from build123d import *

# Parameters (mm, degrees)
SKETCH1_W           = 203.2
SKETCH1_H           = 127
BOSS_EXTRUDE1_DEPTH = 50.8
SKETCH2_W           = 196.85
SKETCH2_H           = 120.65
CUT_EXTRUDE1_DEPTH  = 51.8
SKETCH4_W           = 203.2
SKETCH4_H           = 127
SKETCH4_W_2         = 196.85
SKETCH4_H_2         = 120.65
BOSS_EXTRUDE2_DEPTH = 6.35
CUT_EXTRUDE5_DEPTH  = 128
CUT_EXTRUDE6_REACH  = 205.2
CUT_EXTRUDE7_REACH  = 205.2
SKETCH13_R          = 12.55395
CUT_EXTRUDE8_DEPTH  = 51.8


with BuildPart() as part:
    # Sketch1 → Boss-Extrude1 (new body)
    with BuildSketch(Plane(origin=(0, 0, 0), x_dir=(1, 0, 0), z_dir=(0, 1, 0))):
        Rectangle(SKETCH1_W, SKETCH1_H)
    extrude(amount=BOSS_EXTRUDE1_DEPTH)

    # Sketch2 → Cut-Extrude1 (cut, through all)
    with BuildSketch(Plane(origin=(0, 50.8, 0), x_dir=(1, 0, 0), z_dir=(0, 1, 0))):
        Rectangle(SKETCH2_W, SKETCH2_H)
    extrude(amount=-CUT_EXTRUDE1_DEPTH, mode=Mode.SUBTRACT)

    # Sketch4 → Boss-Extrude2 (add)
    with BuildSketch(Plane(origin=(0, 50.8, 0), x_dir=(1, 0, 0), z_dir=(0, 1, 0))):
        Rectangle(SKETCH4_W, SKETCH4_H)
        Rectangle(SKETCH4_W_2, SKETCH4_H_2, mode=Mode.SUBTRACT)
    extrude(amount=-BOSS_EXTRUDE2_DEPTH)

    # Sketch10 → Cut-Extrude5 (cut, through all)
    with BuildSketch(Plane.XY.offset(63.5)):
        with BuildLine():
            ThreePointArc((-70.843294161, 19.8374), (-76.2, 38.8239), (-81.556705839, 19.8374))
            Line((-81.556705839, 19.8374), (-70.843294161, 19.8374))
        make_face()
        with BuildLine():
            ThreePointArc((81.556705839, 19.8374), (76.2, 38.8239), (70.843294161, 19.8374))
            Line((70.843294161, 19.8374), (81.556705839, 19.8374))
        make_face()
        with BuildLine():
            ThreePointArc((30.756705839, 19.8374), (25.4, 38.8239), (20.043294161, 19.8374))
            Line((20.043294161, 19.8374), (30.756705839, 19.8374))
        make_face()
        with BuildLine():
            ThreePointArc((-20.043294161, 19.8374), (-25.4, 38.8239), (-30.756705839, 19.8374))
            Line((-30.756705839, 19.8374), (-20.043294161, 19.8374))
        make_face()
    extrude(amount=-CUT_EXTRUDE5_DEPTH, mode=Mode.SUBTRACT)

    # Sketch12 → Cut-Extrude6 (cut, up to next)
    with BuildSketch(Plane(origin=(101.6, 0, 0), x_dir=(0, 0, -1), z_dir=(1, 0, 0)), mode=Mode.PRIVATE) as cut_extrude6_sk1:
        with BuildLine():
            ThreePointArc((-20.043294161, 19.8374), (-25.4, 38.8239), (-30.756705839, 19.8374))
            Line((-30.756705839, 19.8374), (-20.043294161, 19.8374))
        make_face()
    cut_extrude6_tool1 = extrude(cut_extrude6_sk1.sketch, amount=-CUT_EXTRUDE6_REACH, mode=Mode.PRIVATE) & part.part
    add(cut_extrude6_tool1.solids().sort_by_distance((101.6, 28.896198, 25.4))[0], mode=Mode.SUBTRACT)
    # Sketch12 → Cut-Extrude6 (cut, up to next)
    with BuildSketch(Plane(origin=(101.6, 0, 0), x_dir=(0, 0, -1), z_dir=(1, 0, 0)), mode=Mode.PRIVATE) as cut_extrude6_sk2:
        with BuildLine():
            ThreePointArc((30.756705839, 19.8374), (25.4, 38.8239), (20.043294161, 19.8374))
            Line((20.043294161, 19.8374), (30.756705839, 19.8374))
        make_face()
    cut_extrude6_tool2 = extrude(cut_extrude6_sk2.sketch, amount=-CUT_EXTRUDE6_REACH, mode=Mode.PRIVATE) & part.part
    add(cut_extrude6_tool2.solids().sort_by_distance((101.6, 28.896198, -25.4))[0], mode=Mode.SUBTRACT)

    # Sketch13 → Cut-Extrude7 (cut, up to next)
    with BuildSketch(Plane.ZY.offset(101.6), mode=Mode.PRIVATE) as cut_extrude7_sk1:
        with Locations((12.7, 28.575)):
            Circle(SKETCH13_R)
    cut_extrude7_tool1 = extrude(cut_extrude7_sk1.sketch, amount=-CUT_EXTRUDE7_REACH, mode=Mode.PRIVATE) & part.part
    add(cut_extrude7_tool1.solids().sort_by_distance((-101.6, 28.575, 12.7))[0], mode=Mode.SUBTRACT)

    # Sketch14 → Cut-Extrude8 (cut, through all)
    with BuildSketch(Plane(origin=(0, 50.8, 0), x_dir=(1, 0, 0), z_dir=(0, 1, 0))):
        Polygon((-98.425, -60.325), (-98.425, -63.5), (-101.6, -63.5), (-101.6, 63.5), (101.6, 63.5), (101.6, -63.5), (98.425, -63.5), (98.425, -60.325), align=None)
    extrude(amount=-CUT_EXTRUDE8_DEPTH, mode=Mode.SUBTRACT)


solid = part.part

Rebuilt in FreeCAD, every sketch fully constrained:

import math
import FreeCAD as App
import Part
import Sketcher
Q = App.Units.Quantity

doc = App.newDocument("Part")
params = doc.addObject("Spreadsheet::Sheet", "Params")
for row, (alias, value) in enumerate([
    ("sketch1_width", "8 in"),
    ("sketch1_height", "5 in"),
    ("pad1_length", "2 in"),
    ("sketch2_width", "7.75 in"),
    ("sketch2_height", "4.75 in"),
    ("sketch3_width", "8 in"),
    ("sketch3_height", "5 in"),
    ("sketch3_width2", "7.75 in"),
    ("sketch3_height2", "4.75 in"),
    ("pad2_length", "0.25 in"),
    ("sketch8_width", "8 in"),
    ("sketch8_height", "5 in"),
    ("sketch8_width2", "7.75 in"),
], start=1):
    params.set(f"A{row}", alias)
    params.set(f"B{row}", "=" + value)
    params.setAlias(f"B{row}", alias)

body = doc.addObject("PartDesign::Body", "Body")

# Sketch on XZ plane
sketch1 = body.newObject("Sketcher::SketchObject", "Sketch")
sketch1.AttachmentSupport = (doc.getObject("XZ_Plane"), [""])
sketch1.MapMode = "FlatFace"
sketch1.addGeometry([
    Part.LineSegment(App.Vector(-102, -64, 0), App.Vector(-102, 64, 0)),
    Part.LineSegment(App.Vector(-102, 64, 0), App.Vector(102, 64, 0)),
    Part.LineSegment(App.Vector(102, 64, 0), App.Vector(102, -64, 0)),
    Part.LineSegment(App.Vector(102, -64, 0), App.Vector(-102, -64, 0)),
], False)
sketch1.addConstraint([
    Sketcher.Constraint("Coincident", 0, 2, 1, 1),
    Sketcher.Constraint("Coincident", 1, 2, 2, 1),
    Sketcher.Constraint("Coincident", 2, 2, 3, 1),
    Sketcher.Constraint("Coincident", 3, 2, 0, 1),
    Sketcher.Constraint("Vertical", 0),
    Sketcher.Constraint("Horizontal", 1),
    Sketcher.Constraint("Vertical", 2),
    Sketcher.Constraint("Horizontal", 3),
    Sketcher.Constraint("Symmetric", 0, 2, 2, 2, -1, 1),
    Sketcher.Constraint("DistanceX", 1, 1, 1, 2, Q("8 in")),
    Sketcher.Constraint("DistanceY", 0, 1, 0, 2, Q("5 in")),
])
sketch1.setExpression("Constraints[9]", "Params.sketch1_width")
sketch1.setExpression("Constraints[10]", "Params.sketch1_height")
pad1 = body.newObject("PartDesign::Pad", "Pad")
pad1.Profile = sketch1
pad1.setExpression("Length", "Params.pad1_length")
pad1.Reversed = True

# Sketch on XZ plane
sketch2 = body.newObject("Sketcher::SketchObject", "Sketch001")
sketch2.AttachmentSupport = (doc.getObject("XZ_Plane"), [""])
sketch2.MapMode = "FlatFace"
sketch2.AttachmentOffset = App.Placement(App.Vector(0, 0, -2 * 25.4), App.Rotation())
sketch2.addGeometry([
    Part.LineSegment(App.Vector(-98, -60, 0), App.Vector(-98, 60, 0)),
    Part.LineSegment(App.Vector(-98, 60, 0), App.Vector(98, 60, 0)),
    Part.LineSegment(App.Vector(98, 60, 0), App.Vector(98, -60, 0)),
    Part.LineSegment(App.Vector(98, -60, 0), App.Vector(-98, -60, 0)),
], False)
sketch2.addConstraint([
    Sketcher.Constraint("Coincident", 0, 2, 1, 1),
    Sketcher.Constraint("Coincident", 1, 2, 2, 1),
    Sketcher.Constraint("Coincident", 2, 2, 3, 1),
    Sketcher.Constraint("Coincident", 3, 2, 0, 1),
    Sketcher.Constraint("Vertical", 0),
    Sketcher.Constraint("Horizontal", 1),
    Sketcher.Constraint("Vertical", 2),
    Sketcher.Constraint("Horizontal", 3),
    Sketcher.Constraint("Symmetric", 0, 2, 2, 2, -1, 1),
    Sketcher.Constraint("DistanceX", 1, 1, 1, 2, Q("7.75 in")),
    Sketcher.Constraint("DistanceY", 0, 1, 0, 2, Q("4.75 in")),
])
sketch2.setExpression("Constraints[9]", "Params.sketch2_width")
sketch2.setExpression("Constraints[10]", "Params.sketch2_height")
pocket1 = body.newObject("PartDesign::Pocket", "Pocket")
pocket1.Profile = sketch2
pocket1.Type = "ThroughAll"
pocket1.Reversed = True

# Sketch on XZ plane
sketch3 = body.newObject("Sketcher::SketchObject", "Sketch002")
sketch3.AttachmentSupport = (doc.getObject("XZ_Plane"), [""])
sketch3.MapMode = "FlatFace"
sketch3.AttachmentOffset = App.Placement(App.Vector(0, 0, -2 * 25.4), App.Rotation())
sketch3.addGeometry([
    Part.LineSegment(App.Vector(-102, -64, 0), App.Vector(-102, 64, 0)),  # 0
    Part.LineSegment(App.Vector(-102, 64, 0), App.Vector(102, 64, 0)),  # 1
    Part.LineSegment(App.Vector(102, 64, 0), App.Vector(102, -64, 0)),  # 2
    Part.LineSegment(App.Vector(102, -64, 0), App.Vector(-102, -64, 0)),  # 3
    Part.LineSegment(App.Vector(98, 60, 0), App.Vector(-98, 60, 0)),  # 4
    Part.LineSegment(App.Vector(-98, 60, 0), App.Vector(-98, -60, 0)),  # 5
    Part.LineSegment(App.Vector(-98, -60, 0), App.Vector(98, -60, 0)),  # 6
    Part.LineSegment(App.Vector(98, -60, 0), App.Vector(98, 60, 0)),  # 7
], False)
sketch3.addConstraint([
    Sketcher.Constraint("Coincident", 0, 2, 1, 1),
    Sketcher.Constraint("Coincident", 1, 2, 2, 1),
    Sketcher.Constraint("Coincident", 2, 2, 3, 1),
    Sketcher.Constraint("Coincident", 3, 2, 0, 1),
    Sketcher.Constraint("Coincident", 4, 2, 5, 1),
    Sketcher.Constraint("Coincident", 5, 2, 6, 1),
    Sketcher.Constraint("Coincident", 6, 2, 7, 1),
    Sketcher.Constraint("Coincident", 7, 2, 4, 1),
    Sketcher.Constraint("Vertical", 0),
    Sketcher.Constraint("Horizontal", 1),
    Sketcher.Constraint("Vertical", 2),
    Sketcher.Constraint("Horizontal", 3),
    Sketcher.Constraint("Horizontal", 4),
    Sketcher.Constraint("Vertical", 5),
    Sketcher.Constraint("Horizontal", 6),
    Sketcher.Constraint("Vertical", 7),
    Sketcher.Constraint("Symmetric", 0, 2, 2, 2, -1, 1),
    Sketcher.Constraint("Symmetric", 4, 2, 6, 2, -1, 1),
    Sketcher.Constraint("DistanceX", 1, 1, 1, 2, Q("8 in")),
    Sketcher.Constraint("DistanceY", 0, 1, 0, 2, Q("5 in")),
    Sketcher.Constraint("DistanceX", 4, 2, 4, 1, Q("7.75 in")),
    Sketcher.Constraint("DistanceY", 5, 2, 5, 1, Q("4.75 in")),
])
sketch3.setExpression("Constraints[18]", "Params.sketch3_width")
sketch3.setExpression("Constraints[19]", "Params.sketch3_height")
sketch3.setExpression("Constraints[20]", "Params.sketch3_width2")
sketch3.setExpression("Constraints[21]", "Params.sketch3_height2")
pad2 = body.newObject("PartDesign::Pad", "Pad001")
pad2.Profile = sketch3
pad2.setExpression("Length", "Params.pad2_length")

# Sketch on XY plane
sketch4 = body.newObject("Sketcher::SketchObject", "Sketch003")
sketch4.AttachmentSupport = (doc.getObject("XY_Plane"), [""])
sketch4.MapMode = "FlatFace"
sketch4.AttachmentOffset = App.Placement(App.Vector(0, 0, 2.5 * 25.4), App.Rotation())
sketch4.addGeometry([
    Part.ArcOfCircle(Part.Circle(App.Vector(-76, 29, 0), App.Vector(0, 0, 1), 10), math.radians(-58), math.radians(238)),  # 0
    Part.LineSegment(App.Vector(-82, 20, 0), App.Vector(-71, 20, 0)),  # 1
    Part.ArcOfCircle(Part.Circle(App.Vector(76, 29, 0), App.Vector(0, 0, 1), 10), math.radians(-58), math.radians(238)),  # 2
    Part.LineSegment(App.Vector(71, 20, 0), App.Vector(82, 20, 0)),  # 3
    Part.ArcOfCircle(Part.Circle(App.Vector(25, 29, 0), App.Vector(0, 0, 1), 10), math.radians(-58), math.radians(238)),  # 4
    Part.LineSegment(App.Vector(20, 20, 0), App.Vector(31, 20, 0)),  # 5
    Part.ArcOfCircle(Part.Circle(App.Vector(-25, 29, 0), App.Vector(0, 0, 1), 10), math.radians(-58), math.radians(238)),  # 6
    Part.LineSegment(App.Vector(-31, 20, 0), App.Vector(-20, 20, 0)),  # 7
], False)
sketch4.addConstraint([
    Sketcher.Constraint("Coincident", 0, 1, 1, 2),
    Sketcher.Constraint("Coincident", 1, 1, 0, 2),
    Sketcher.Constraint("Coincident", 2, 1, 3, 2),
    Sketcher.Constraint("Coincident", 3, 1, 2, 2),
    Sketcher.Constraint("Coincident", 4, 1, 5, 2),
    Sketcher.Constraint("Coincident", 5, 1, 4, 2),
    Sketcher.Constraint("Coincident", 6, 1, 7, 2),
    Sketcher.Constraint("Coincident", 7, 1, 6, 2),
    Sketcher.Constraint("Horizontal", 1),
    Sketcher.Constraint("Horizontal", 3),
    Sketcher.Constraint("Horizontal", 5),
    Sketcher.Constraint("Horizontal", 7),
    Sketcher.Constraint("Equal", 0, 2),
    Sketcher.Constraint("Equal", 2, 4),
    Sketcher.Constraint("Equal", 4, 6),
    Sketcher.Constraint("Symmetric", 0, 3, 2, 3, -2),
    Sketcher.Constraint("Symmetric", 4, 3, 6, 3, -2),
    Sketcher.Constraint("Horizontal", 2, 3, 4, 3),
    Sketcher.Constraint("Horizontal", 1, 1, 2, 1),
    Sketcher.Constraint("Horizontal", 3, 1, 4, 1),
    Sketcher.Constraint("Horizontal", 5, 1, 6, 1),
    Sketcher.Constraint("DistanceX", 0, 3, -1, 1, Q("3 in")),
    Sketcher.Constraint("DistanceX", -1, 1, 4, 3, Q("1 in")),
    Sketcher.Constraint("Radius", 0, Q("0.4035 in")),
    Sketcher.Constraint("DistanceY", -1, 1, 0, 3, Q("1.125 in")),
    Sketcher.Constraint("DistanceY", -1, 1, 0, 1, Q("0.781 in")),
])
pocket2 = body.newObject("PartDesign::Pocket", "Pocket001")
pocket2.Profile = sketch4
pocket2.Type = "ThroughAll"

# Sketch on YZ plane
sketch5 = body.newObject("Sketcher::SketchObject", "Sketch004")
sketch5.AttachmentSupport = (doc.getObject("YZ_Plane"), [""])
sketch5.MapMode = "FlatFace"
sketch5.AttachmentOffset = App.Placement(App.Vector(0, 0, 4 * 25.4), App.Rotation())
sketch5.addGeometry([
    Part.ArcOfCircle(Part.Circle(App.Vector(29, 25, 0), App.Vector(0, 0, 1), 10), math.radians(-148), math.radians(148)),
    Part.LineSegment(App.Vector(20, 31, 0), App.Vector(20, 20, 0)),
], False)
sketch5.addConstraint([
    Sketcher.Constraint("Coincident", 0, 1, 1, 2),
    Sketcher.Constraint("Coincident", 1, 1, 0, 2),
    Sketcher.Constraint("Vertical", 1),
    Sketcher.Constraint("DistanceY", -1, 1, 0, 3, Q("1 in")),
    Sketcher.Constraint("Radius", 0, Q("0.4035 in")),
    Sketcher.Constraint("DistanceX", -1, 1, 0, 3, Q("1.125 in")),
    Sketcher.Constraint("DistanceX", -1, 1, 0, 1, Q("0.781 in")),
])
pocket3 = body.newObject("PartDesign::Pocket", "Pocket002")
pocket3.Profile = sketch5
pocket3.Type = "UpToFirst"

# Sketch on YZ plane
sketch6 = body.newObject("Sketcher::SketchObject", "Sketch005")
sketch6.AttachmentSupport = (doc.getObject("YZ_Plane"), [""])
sketch6.MapMode = "FlatFace"
sketch6.AttachmentOffset = App.Placement(App.Vector(0, 0, 4 * 25.4), App.Rotation())
sketch6.addGeometry([
    Part.ArcOfCircle(Part.Circle(App.Vector(29, -25, 0), App.Vector(0, 0, 1), 10), math.radians(-148), math.radians(148)),
    Part.LineSegment(App.Vector(20, -20, 0), App.Vector(20, -31, 0)),
], False)
sketch6.addConstraint([
    Sketcher.Constraint("Coincident", 0, 1, 1, 2),
    Sketcher.Constraint("Coincident", 1, 1, 0, 2),
    Sketcher.Constraint("Vertical", 1),
    Sketcher.Constraint("DistanceY", 0, 3, -1, 1, Q("1 in")),
    Sketcher.Constraint("Radius", 0, Q("0.4035 in")),
    Sketcher.Constraint("DistanceX", -1, 1, 0, 3, Q("1.125 in")),
    Sketcher.Constraint("DistanceX", -1, 1, 0, 1, Q("0.781 in")),
])
pocket4 = body.newObject("PartDesign::Pocket", "Pocket003")
pocket4.Profile = sketch6
pocket4.Type = "UpToFirst"

# Sketch on YZ plane
sketch7 = body.newObject("Sketcher::SketchObject", "Sketch006")
sketch7.AttachmentSupport = (doc.getObject("YZ_Plane"), [""])
sketch7.MapMode = "FlatFace"
sketch7.AttachmentOffset = App.Placement(App.Vector(0, 0, -4 * 25.4), App.Rotation())
sketch7.addGeometry(Part.Circle(App.Vector(29, 13, 0), App.Vector(0, 0, 1), 13), False)
sketch7.addConstraint([
    Sketcher.Constraint("Diameter", 0, Q("0.9885 in")),
    Sketcher.Constraint("DistanceY", -1, 1, 0, 3, Q("0.5 in")),
    Sketcher.Constraint("DistanceX", -1, 1, 0, 3, Q("1.125 in")),
])
pocket5 = body.newObject("PartDesign::Pocket", "Pocket004")
pocket5.Profile = sketch7
pocket5.Type = "UpToFirst"
pocket5.Reversed = True

# Sketch on XZ plane
sketch8 = body.newObject("Sketcher::SketchObject", "Sketch007")
sketch8.AttachmentSupport = (doc.getObject("XZ_Plane"), [""])
sketch8.MapMode = "FlatFace"
sketch8.AttachmentOffset = App.Placement(App.Vector(0, 0, -2 * 25.4), App.Rotation())
sketch8.addGeometry([
    Part.LineSegment(App.Vector(-98.4, 63.5, 0), App.Vector(-98.4, 60.3, 0)),  # 0
    Part.LineSegment(App.Vector(-98.4, 60.3, 0), App.Vector(98.4, 60.3, 0)),  # 1
    Part.LineSegment(App.Vector(98.4, 60.3, 0), App.Vector(98.4, 63.5, 0)),  # 2
    Part.LineSegment(App.Vector(98.4, 63.5, 0), App.Vector(101.6, 63.5, 0)),  # 3
    Part.LineSegment(App.Vector(101.6, 63.5, 0), App.Vector(101.6, -63.5, 0)),  # 4
    Part.LineSegment(App.Vector(101.6, -63.5, 0), App.Vector(-101.6, -63.5, 0)),  # 5
    Part.LineSegment(App.Vector(-101.6, -63.5, 0), App.Vector(-101.6, 63.5, 0)),  # 6
    Part.LineSegment(App.Vector(-101.6, 63.5, 0), App.Vector(-98.4, 63.5, 0)),  # 7
], False)
sketch8.addConstraint([
    Sketcher.Constraint("Coincident", 0, 2, 1, 1),
    Sketcher.Constraint("Coincident", 1, 2, 2, 1),
    Sketcher.Constraint("Coincident", 2, 2, 3, 1),
    Sketcher.Constraint("Coincident", 3, 2, 4, 1),
    Sketcher.Constraint("Coincident", 4, 2, 5, 1),
    Sketcher.Constraint("Coincident", 5, 2, 6, 1),
    Sketcher.Constraint("Coincident", 6, 2, 7, 1),
    Sketcher.Constraint("Coincident", 7, 2, 0, 1),
    Sketcher.Constraint("Vertical", 0),
    Sketcher.Constraint("Horizontal", 1),
    Sketcher.Constraint("Vertical", 2),
    Sketcher.Constraint("Horizontal", 3),
    Sketcher.Constraint("Vertical", 4),
    Sketcher.Constraint("Horizontal", 5),
    Sketcher.Constraint("Vertical", 6),
    Sketcher.Constraint("Horizontal", 7),
    Sketcher.Constraint("Symmetric", 3, 2, 5, 2, -1, 1),
    Sketcher.Constraint("Symmetric", 2, 2, 7, 2, -2),
    Sketcher.Constraint("Equal", 7, 0),
    Sketcher.Constraint("DistanceX", 5, 2, 5, 1, Q("8 in")),
    Sketcher.Constraint("DistanceY", 4, 2, 4, 1, Q("5 in")),
    Sketcher.Constraint("DistanceX", 1, 1, 1, 2, Q("7.75 in")),
])
sketch8.setExpression("Constraints[19]", "Params.sketch8_width")
sketch8.setExpression("Constraints[20]", "Params.sketch8_height")
sketch8.setExpression("Constraints[21]", "Params.sketch8_width2")
pocket6 = body.newObject("PartDesign::Pocket", "Pocket005")
pocket6.Profile = sketch8
pocket6.Type = "ThroughAll"
pocket6.Reversed = True

doc.recompute()
